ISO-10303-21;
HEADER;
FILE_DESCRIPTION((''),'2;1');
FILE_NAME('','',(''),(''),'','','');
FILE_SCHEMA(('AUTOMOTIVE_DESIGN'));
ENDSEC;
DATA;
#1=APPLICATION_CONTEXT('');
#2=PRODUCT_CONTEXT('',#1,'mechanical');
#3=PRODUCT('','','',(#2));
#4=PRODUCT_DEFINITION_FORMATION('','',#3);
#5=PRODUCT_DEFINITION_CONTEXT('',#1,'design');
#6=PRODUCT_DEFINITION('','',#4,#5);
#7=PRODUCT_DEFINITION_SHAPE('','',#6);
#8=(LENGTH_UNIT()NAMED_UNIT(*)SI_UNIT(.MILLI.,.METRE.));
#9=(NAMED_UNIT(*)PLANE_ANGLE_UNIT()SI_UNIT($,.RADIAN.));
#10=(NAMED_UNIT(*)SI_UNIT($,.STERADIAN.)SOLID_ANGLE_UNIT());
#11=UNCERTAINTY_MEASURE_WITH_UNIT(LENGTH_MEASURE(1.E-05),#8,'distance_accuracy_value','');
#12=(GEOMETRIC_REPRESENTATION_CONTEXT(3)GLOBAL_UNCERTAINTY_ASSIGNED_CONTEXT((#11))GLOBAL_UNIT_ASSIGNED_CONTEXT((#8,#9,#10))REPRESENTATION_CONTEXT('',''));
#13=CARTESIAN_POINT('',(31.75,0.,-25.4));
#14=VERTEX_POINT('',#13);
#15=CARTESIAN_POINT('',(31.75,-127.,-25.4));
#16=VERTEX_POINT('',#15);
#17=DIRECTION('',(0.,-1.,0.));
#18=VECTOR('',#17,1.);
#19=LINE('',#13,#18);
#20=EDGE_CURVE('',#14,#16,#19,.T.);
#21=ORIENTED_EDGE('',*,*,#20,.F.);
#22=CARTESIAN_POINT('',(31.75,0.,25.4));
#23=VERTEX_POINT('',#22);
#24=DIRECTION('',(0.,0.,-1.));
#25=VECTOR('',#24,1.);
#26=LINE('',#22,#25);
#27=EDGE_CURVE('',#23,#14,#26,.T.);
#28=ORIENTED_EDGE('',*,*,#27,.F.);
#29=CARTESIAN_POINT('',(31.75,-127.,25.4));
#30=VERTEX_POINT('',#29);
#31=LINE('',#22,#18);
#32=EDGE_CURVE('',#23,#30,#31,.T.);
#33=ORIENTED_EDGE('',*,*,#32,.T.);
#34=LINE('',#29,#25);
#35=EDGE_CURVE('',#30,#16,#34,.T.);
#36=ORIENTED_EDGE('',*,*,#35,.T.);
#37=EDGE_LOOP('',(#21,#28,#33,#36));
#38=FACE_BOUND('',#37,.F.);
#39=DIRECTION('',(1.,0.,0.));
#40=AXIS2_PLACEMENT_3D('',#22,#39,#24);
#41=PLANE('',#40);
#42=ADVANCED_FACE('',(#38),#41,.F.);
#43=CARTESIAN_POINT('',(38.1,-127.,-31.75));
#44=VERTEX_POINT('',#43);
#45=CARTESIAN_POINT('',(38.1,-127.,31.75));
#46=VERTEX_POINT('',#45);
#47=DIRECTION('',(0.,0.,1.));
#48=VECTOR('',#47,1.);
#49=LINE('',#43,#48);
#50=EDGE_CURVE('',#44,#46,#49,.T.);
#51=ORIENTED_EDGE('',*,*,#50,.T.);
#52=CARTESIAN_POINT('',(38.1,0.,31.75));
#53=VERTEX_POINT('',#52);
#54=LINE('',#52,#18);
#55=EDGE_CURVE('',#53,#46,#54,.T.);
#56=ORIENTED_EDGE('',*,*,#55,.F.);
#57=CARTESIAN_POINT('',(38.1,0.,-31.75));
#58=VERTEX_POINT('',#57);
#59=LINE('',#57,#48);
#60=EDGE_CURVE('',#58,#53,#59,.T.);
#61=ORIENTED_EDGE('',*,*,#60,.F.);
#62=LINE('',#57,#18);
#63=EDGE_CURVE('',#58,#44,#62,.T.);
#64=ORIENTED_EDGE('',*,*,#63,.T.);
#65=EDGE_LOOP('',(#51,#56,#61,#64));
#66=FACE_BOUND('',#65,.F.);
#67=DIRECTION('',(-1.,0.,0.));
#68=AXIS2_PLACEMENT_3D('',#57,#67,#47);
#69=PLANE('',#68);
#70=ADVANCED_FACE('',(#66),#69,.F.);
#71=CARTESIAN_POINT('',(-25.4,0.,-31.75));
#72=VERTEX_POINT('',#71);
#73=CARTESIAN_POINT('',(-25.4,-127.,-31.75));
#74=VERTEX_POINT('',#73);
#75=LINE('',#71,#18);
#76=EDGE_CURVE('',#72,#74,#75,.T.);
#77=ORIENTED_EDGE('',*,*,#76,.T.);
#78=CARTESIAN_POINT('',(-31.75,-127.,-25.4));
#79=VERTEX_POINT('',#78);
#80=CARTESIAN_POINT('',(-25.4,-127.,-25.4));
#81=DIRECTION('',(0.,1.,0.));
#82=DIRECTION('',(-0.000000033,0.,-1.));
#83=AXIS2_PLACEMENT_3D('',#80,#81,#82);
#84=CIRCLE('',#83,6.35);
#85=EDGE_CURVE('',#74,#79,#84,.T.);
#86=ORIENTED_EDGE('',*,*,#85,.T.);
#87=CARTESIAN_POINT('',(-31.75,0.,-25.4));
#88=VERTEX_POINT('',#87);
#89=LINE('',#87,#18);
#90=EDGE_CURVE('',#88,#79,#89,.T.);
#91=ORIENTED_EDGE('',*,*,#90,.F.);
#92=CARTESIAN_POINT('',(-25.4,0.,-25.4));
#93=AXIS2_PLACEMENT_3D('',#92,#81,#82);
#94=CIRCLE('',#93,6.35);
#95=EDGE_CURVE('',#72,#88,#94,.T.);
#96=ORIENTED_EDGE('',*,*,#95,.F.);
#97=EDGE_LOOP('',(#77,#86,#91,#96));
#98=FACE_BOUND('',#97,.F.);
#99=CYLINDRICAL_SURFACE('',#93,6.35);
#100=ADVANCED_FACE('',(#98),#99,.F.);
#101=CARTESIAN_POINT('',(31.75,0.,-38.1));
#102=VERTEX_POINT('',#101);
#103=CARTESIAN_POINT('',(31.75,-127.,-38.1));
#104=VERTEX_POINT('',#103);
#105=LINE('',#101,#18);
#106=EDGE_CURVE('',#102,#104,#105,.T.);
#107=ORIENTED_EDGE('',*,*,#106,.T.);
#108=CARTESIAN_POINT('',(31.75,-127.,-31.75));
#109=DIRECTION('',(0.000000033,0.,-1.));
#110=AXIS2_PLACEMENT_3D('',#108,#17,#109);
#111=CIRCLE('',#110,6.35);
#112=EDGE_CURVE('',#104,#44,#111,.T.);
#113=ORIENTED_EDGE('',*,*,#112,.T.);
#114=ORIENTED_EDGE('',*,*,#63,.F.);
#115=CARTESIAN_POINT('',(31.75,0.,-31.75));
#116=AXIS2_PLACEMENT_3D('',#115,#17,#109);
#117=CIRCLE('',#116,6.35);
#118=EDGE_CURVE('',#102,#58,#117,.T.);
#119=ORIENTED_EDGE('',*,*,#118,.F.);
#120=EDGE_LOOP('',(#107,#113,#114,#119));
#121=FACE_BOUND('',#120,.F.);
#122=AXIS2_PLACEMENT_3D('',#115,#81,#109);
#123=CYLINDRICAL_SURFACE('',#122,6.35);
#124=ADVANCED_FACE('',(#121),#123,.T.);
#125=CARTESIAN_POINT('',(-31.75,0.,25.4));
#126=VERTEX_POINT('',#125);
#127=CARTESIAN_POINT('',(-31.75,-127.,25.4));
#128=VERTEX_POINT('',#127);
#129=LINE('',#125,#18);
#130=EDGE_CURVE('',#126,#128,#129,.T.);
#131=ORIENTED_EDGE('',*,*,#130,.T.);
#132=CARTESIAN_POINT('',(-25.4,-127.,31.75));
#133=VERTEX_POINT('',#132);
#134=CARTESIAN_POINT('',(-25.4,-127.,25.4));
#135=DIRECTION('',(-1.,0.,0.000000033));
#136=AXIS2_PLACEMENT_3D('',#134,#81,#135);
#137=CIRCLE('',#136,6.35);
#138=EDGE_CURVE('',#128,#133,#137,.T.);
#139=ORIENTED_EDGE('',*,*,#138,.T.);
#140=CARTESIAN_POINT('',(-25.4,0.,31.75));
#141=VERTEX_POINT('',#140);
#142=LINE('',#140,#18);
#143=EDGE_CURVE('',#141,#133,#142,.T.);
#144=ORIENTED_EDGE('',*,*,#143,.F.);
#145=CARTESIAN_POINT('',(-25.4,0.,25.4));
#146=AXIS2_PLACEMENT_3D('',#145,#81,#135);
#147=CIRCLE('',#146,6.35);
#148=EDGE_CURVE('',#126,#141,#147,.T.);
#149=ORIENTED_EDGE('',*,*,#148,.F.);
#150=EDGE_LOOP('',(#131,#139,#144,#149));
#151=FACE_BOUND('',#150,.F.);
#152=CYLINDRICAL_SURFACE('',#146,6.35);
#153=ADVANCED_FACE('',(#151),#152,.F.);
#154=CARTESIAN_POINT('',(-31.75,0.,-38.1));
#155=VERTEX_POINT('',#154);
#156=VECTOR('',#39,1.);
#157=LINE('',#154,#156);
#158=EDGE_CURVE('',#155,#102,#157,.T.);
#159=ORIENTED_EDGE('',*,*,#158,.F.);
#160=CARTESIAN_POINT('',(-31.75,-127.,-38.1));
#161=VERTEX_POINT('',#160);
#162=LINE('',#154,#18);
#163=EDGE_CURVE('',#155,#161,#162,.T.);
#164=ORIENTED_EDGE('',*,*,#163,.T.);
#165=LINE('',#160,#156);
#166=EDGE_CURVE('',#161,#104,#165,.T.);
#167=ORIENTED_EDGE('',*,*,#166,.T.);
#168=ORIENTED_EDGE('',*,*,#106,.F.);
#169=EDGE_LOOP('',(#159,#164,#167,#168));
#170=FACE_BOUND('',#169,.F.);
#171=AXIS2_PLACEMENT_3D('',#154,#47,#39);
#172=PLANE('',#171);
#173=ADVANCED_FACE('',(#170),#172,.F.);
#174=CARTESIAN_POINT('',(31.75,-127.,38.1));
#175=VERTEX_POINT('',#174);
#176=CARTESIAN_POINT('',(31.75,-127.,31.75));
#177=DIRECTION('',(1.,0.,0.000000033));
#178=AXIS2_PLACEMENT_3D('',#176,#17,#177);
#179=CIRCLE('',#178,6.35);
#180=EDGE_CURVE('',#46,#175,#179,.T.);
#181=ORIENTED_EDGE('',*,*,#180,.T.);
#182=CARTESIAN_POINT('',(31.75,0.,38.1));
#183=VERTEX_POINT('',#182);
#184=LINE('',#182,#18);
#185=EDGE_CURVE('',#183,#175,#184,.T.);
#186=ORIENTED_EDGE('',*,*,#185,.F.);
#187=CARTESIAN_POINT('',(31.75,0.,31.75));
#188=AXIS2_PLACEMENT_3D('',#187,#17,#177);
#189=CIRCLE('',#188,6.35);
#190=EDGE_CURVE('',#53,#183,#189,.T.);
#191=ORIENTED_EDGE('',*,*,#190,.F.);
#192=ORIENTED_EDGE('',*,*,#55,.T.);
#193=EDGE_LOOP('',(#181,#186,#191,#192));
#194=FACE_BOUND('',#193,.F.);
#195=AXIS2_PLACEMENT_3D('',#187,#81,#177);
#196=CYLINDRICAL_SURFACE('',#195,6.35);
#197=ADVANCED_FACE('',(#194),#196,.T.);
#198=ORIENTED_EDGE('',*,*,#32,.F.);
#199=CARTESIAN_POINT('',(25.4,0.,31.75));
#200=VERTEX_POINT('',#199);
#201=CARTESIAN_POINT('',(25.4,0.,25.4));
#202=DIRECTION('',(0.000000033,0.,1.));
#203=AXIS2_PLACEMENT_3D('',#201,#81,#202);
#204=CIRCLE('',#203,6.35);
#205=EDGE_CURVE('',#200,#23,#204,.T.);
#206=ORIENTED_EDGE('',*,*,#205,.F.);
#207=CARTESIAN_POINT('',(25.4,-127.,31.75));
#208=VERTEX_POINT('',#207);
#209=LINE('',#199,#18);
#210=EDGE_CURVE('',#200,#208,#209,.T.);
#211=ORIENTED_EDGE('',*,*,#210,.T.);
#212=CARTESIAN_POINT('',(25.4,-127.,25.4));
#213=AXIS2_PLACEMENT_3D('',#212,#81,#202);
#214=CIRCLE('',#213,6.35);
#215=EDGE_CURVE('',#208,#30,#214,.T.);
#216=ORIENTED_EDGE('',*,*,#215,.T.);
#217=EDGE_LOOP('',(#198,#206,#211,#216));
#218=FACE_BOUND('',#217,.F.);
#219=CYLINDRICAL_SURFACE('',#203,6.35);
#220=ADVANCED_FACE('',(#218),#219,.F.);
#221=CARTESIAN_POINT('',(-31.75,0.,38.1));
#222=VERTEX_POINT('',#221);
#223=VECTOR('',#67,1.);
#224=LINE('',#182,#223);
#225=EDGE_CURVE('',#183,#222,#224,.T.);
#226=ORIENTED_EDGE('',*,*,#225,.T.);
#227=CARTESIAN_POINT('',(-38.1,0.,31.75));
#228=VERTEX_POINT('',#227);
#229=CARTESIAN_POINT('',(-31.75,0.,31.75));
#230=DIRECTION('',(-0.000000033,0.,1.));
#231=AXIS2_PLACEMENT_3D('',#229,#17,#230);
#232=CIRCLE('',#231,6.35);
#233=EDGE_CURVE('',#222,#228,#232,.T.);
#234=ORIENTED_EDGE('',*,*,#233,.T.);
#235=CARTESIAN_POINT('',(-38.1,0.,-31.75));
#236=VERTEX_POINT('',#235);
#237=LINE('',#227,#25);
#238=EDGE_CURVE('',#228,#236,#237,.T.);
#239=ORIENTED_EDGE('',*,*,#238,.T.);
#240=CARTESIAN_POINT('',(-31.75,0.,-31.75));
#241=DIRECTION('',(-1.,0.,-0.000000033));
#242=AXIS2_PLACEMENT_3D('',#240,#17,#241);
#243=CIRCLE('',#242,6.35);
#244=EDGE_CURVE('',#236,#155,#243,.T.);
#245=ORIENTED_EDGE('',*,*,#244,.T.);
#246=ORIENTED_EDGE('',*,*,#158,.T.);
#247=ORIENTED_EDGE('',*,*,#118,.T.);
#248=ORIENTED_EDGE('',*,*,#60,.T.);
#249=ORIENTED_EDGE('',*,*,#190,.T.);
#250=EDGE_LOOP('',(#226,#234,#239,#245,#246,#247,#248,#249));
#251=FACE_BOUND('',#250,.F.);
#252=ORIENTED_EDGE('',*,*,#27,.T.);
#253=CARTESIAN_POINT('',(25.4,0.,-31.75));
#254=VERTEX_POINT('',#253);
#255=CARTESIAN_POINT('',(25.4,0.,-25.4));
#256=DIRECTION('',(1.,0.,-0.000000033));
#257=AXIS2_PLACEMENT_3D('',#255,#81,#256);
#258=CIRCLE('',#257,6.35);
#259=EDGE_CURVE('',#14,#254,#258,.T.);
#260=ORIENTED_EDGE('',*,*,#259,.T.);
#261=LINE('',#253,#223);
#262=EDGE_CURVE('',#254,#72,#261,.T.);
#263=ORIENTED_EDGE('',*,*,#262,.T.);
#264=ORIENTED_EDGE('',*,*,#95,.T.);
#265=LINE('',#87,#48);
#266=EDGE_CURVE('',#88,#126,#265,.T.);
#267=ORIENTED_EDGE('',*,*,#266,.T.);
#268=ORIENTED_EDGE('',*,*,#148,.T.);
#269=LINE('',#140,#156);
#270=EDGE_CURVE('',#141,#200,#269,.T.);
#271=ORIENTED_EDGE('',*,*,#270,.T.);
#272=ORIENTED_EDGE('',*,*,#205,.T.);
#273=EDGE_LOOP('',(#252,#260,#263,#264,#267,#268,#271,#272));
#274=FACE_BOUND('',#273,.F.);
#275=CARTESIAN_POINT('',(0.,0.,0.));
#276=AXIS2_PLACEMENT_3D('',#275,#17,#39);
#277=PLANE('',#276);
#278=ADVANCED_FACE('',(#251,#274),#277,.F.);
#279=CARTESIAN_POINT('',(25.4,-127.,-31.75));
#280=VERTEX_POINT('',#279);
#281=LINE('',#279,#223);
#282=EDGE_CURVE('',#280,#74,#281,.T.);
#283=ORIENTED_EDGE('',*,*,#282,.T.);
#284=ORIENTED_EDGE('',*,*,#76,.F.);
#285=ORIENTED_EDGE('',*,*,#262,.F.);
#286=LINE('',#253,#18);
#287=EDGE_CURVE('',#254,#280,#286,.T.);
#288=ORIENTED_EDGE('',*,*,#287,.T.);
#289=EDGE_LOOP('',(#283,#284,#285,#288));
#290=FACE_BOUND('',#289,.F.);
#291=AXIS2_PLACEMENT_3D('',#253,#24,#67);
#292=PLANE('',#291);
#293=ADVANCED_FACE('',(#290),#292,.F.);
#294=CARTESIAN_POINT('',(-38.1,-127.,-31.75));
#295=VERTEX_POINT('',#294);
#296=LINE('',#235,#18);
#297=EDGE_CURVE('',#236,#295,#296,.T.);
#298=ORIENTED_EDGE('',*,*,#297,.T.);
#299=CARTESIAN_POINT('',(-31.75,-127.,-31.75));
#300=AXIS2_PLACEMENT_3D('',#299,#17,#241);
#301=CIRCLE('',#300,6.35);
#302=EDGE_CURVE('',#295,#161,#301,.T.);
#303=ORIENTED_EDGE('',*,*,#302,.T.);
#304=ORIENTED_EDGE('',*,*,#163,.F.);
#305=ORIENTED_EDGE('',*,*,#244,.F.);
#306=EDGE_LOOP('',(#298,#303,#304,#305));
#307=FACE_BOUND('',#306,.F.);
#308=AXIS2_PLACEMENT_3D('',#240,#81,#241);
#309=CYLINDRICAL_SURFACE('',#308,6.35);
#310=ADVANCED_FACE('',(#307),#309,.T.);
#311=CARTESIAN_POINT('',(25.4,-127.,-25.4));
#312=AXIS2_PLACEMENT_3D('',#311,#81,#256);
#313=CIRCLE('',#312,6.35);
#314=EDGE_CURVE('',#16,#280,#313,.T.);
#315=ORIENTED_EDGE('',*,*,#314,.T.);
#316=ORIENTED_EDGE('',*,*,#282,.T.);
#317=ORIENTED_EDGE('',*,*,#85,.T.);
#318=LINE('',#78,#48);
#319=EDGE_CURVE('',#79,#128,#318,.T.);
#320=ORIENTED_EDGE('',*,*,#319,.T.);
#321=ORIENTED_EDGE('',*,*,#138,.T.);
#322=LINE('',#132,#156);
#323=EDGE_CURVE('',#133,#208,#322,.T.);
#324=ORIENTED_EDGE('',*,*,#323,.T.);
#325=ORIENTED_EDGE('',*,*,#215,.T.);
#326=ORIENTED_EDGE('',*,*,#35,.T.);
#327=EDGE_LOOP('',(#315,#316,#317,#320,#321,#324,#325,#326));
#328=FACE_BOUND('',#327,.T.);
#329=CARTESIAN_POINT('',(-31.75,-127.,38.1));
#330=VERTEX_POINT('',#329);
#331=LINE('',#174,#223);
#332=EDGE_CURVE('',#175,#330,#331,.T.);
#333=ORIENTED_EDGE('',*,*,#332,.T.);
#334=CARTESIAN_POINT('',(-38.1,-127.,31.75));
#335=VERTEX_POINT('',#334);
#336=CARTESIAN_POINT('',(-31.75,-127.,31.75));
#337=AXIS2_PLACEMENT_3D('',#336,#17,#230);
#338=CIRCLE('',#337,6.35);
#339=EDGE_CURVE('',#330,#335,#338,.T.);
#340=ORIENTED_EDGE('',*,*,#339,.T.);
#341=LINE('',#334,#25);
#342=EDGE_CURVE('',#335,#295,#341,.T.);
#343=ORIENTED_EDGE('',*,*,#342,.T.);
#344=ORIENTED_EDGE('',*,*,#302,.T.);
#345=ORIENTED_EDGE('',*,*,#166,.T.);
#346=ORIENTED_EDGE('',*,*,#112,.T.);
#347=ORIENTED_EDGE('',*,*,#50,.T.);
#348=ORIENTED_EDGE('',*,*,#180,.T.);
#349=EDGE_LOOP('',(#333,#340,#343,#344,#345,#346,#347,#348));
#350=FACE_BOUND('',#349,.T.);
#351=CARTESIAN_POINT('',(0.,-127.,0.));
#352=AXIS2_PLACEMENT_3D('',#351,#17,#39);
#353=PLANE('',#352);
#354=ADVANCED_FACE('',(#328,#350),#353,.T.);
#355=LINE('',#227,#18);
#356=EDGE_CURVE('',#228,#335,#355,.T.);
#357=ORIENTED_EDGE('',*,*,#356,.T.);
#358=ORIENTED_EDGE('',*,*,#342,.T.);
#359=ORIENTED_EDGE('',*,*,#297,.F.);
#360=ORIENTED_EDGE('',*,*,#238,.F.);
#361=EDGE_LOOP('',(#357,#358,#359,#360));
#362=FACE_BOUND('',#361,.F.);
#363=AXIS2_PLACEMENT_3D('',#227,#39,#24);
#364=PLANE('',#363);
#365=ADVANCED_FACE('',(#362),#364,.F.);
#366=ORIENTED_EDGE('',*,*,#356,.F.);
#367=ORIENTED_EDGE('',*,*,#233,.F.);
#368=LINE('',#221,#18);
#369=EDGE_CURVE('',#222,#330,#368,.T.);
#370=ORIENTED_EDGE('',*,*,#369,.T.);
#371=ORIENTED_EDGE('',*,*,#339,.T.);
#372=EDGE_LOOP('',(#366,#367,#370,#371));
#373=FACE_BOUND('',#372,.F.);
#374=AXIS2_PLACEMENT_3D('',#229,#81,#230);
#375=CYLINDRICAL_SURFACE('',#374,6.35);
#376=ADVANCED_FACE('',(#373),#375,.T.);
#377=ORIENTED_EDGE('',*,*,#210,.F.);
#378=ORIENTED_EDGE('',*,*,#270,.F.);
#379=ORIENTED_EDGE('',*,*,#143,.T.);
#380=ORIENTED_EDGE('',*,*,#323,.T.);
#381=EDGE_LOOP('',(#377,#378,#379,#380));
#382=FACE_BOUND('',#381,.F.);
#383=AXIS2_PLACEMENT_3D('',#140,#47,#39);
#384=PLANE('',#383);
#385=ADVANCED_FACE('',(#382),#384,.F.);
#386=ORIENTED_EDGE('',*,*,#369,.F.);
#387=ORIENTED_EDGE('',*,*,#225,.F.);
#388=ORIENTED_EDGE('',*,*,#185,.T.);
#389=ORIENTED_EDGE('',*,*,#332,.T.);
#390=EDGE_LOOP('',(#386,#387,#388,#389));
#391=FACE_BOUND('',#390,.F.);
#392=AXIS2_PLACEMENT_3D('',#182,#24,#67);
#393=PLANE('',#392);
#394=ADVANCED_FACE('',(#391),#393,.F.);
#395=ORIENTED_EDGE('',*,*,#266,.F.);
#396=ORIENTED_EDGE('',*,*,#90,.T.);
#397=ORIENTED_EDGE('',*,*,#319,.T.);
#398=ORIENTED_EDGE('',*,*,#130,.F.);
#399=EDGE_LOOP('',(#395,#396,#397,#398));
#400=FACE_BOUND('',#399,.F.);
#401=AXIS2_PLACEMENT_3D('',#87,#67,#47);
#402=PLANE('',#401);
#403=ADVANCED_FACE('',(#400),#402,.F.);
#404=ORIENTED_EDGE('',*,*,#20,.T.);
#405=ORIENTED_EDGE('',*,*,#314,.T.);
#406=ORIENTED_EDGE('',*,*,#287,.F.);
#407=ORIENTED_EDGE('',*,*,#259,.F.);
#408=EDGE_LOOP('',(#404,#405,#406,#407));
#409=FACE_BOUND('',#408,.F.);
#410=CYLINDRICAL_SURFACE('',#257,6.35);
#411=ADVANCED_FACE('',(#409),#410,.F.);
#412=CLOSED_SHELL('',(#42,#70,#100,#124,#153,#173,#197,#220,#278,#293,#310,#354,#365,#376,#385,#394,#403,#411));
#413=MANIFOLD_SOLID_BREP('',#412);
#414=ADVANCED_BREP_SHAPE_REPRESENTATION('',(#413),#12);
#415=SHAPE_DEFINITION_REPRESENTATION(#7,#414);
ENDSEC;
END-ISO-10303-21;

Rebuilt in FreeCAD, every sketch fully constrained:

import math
import FreeCAD as App
import Part
import Sketcher
Q = App.Units.Quantity

doc = App.newDocument("Part")
body = doc.addObject("PartDesign::Body", "Body")

sketch1 = doc.addObject("Sketcher::SketchObject", "Sketch")
body.addObject(sketch1)
sketch1.AttachmentSupport = (doc.XZ_Plane, [""])
sketch1.MapMode = "FlatFace"
sketch1.addGeometry([
    Part.ArcOfCircle(Part.Circle(App.Vector(32, 32, 0), App.Vector(0, 0, 1), 6), math.radians(0), math.radians(90)),
    Part.LineSegment(App.Vector(32, 38, 0), App.Vector(-32, 38, 0)),
    Part.ArcOfCircle(Part.Circle(App.Vector(-32, 32, 0), App.Vector(0, 0, 1), 6), math.radians(90), math.radians(180)),
    Part.LineSegment(App.Vector(-38, 32, 0), App.Vector(-38, -32, 0)),
    Part.ArcOfCircle(Part.Circle(App.Vector(-32, -32, 0), App.Vector(0, 0, 1), 6), math.radians(-180), math.radians(-90)),
    Part.LineSegment(App.Vector(-32, -38, 0), App.Vector(32, -38, 0)),
    Part.ArcOfCircle(Part.Circle(App.Vector(32, -32, 0), App.Vector(0, 0, 1), 6), math.radians(-90), math.radians(0)),
    Part.LineSegment(App.Vector(38, -32, 0), App.Vector(38, 32, 0)),
    Part.ArcOfCircle(Part.Circle(App.Vector(-25, -25, 0), App.Vector(0, 0, 1), 6), math.radians(-180), math.radians(-90)),
    Part.LineSegment(App.Vector(-32, -25, 0), App.Vector(-32, 25, 0)),
    Part.ArcOfCircle(Part.Circle(App.Vector(-25, 25, 0), App.Vector(0, 0, 1), 6), math.radians(90), math.radians(180)),
    Part.LineSegment(App.Vector(-25, 32, 0), App.Vector(25, 32, 0)),
    Part.ArcOfCircle(Part.Circle(App.Vector(25, 25, 0), App.Vector(0, 0, 1), 6), math.radians(0), math.radians(90)),
    Part.LineSegment(App.Vector(32, 25, 0), App.Vector(32, -25, 0)),
    Part.ArcOfCircle(Part.Circle(App.Vector(25, -25, 0), App.Vector(0, 0, 1), 6), math.radians(-90), math.radians(0)),
    Part.LineSegment(App.Vector(25, -32, 0), App.Vector(-25, -32, 0)),
], False)
sketch1.addConstraint([
    Sketcher.Constraint("Tangent", 0, 2, 1, 1),
    Sketcher.Constraint("Tangent", 1, 2, 2, 1),
    Sketcher.Constraint("Tangent", 2, 2, 3, 1),
    Sketcher.Constraint("Tangent", 3, 2, 4, 1),
    Sketcher.Constraint("Tangent", 4, 2, 5, 1),
    Sketcher.Constraint("Tangent", 5, 2, 6, 1),
    Sketcher.Constraint("Tangent", 6, 2, 7, 1),
    Sketcher.Constraint("Tangent", 7, 2, 0, 1),
    Sketcher.Constraint("Tangent", 8, 1, 9, 1),
    Sketcher.Constraint("Tangent", 9, 2, 10, 2),
    Sketcher.Constraint("Tangent", 10, 1, 11, 1),
    Sketcher.Constraint("Tangent", 11, 2, 12, 2),
    Sketcher.Constraint("Tangent", 12, 1, 13, 1),
    Sketcher.Constraint("Tangent", 13, 2, 14, 2),
    Sketcher.Constraint("Tangent", 14, 1, 15, 1),
    Sketcher.Constraint("Tangent", 15, 2, 8, 2),
    Sketcher.Constraint("Horizontal", 1),
    Sketcher.Constraint("Vertical", 3),
    Sketcher.Constraint("Horizontal", 5),
    Sketcher.Constraint("Vertical", 7),
    Sketcher.Constraint("Vertical", 9),
    Sketcher.Constraint("Horizontal", 11),
    Sketcher.Constraint("Vertical", 13),
    Sketcher.Constraint("Horizontal", 15),
    Sketcher.Constraint("Equal", 0, 2),
    Sketcher.Constraint("Equal", 2, 4),
    Sketcher.Constraint("Equal", 4, 6),
    Sketcher.Constraint("Equal", 6, 8),
    Sketcher.Constraint("Equal", 8, 10),
    Sketcher.Constraint("Equal", 10, 12),
    Sketcher.Constraint("Equal", 12, 14),
    Sketcher.Constraint("Symmetric", 0, 3, 4, 3, -1, 1),
    Sketcher.Constraint("Symmetric", 8, 3, 12, 3, -1, 1),
    Sketcher.Constraint("Horizontal", 7, 2, 10, 1),
    Sketcher.Constraint("Vertical", 4, 2, 8, 1),
    Sketcher.Constraint("Equal", 5, 3),
    Sketcher.Constraint("DistanceX", 11, 1, 11, 2, Q("2 in")),
    Sketcher.Constraint("Radius", 0, Q("0.25 in")),
])
pad1 = doc.addObject("PartDesign::Pad", "Pad")
body.addObject(pad1)
pad1.Profile = sketch1
pad1.Length = Q("5 in")

doc.recompute()
